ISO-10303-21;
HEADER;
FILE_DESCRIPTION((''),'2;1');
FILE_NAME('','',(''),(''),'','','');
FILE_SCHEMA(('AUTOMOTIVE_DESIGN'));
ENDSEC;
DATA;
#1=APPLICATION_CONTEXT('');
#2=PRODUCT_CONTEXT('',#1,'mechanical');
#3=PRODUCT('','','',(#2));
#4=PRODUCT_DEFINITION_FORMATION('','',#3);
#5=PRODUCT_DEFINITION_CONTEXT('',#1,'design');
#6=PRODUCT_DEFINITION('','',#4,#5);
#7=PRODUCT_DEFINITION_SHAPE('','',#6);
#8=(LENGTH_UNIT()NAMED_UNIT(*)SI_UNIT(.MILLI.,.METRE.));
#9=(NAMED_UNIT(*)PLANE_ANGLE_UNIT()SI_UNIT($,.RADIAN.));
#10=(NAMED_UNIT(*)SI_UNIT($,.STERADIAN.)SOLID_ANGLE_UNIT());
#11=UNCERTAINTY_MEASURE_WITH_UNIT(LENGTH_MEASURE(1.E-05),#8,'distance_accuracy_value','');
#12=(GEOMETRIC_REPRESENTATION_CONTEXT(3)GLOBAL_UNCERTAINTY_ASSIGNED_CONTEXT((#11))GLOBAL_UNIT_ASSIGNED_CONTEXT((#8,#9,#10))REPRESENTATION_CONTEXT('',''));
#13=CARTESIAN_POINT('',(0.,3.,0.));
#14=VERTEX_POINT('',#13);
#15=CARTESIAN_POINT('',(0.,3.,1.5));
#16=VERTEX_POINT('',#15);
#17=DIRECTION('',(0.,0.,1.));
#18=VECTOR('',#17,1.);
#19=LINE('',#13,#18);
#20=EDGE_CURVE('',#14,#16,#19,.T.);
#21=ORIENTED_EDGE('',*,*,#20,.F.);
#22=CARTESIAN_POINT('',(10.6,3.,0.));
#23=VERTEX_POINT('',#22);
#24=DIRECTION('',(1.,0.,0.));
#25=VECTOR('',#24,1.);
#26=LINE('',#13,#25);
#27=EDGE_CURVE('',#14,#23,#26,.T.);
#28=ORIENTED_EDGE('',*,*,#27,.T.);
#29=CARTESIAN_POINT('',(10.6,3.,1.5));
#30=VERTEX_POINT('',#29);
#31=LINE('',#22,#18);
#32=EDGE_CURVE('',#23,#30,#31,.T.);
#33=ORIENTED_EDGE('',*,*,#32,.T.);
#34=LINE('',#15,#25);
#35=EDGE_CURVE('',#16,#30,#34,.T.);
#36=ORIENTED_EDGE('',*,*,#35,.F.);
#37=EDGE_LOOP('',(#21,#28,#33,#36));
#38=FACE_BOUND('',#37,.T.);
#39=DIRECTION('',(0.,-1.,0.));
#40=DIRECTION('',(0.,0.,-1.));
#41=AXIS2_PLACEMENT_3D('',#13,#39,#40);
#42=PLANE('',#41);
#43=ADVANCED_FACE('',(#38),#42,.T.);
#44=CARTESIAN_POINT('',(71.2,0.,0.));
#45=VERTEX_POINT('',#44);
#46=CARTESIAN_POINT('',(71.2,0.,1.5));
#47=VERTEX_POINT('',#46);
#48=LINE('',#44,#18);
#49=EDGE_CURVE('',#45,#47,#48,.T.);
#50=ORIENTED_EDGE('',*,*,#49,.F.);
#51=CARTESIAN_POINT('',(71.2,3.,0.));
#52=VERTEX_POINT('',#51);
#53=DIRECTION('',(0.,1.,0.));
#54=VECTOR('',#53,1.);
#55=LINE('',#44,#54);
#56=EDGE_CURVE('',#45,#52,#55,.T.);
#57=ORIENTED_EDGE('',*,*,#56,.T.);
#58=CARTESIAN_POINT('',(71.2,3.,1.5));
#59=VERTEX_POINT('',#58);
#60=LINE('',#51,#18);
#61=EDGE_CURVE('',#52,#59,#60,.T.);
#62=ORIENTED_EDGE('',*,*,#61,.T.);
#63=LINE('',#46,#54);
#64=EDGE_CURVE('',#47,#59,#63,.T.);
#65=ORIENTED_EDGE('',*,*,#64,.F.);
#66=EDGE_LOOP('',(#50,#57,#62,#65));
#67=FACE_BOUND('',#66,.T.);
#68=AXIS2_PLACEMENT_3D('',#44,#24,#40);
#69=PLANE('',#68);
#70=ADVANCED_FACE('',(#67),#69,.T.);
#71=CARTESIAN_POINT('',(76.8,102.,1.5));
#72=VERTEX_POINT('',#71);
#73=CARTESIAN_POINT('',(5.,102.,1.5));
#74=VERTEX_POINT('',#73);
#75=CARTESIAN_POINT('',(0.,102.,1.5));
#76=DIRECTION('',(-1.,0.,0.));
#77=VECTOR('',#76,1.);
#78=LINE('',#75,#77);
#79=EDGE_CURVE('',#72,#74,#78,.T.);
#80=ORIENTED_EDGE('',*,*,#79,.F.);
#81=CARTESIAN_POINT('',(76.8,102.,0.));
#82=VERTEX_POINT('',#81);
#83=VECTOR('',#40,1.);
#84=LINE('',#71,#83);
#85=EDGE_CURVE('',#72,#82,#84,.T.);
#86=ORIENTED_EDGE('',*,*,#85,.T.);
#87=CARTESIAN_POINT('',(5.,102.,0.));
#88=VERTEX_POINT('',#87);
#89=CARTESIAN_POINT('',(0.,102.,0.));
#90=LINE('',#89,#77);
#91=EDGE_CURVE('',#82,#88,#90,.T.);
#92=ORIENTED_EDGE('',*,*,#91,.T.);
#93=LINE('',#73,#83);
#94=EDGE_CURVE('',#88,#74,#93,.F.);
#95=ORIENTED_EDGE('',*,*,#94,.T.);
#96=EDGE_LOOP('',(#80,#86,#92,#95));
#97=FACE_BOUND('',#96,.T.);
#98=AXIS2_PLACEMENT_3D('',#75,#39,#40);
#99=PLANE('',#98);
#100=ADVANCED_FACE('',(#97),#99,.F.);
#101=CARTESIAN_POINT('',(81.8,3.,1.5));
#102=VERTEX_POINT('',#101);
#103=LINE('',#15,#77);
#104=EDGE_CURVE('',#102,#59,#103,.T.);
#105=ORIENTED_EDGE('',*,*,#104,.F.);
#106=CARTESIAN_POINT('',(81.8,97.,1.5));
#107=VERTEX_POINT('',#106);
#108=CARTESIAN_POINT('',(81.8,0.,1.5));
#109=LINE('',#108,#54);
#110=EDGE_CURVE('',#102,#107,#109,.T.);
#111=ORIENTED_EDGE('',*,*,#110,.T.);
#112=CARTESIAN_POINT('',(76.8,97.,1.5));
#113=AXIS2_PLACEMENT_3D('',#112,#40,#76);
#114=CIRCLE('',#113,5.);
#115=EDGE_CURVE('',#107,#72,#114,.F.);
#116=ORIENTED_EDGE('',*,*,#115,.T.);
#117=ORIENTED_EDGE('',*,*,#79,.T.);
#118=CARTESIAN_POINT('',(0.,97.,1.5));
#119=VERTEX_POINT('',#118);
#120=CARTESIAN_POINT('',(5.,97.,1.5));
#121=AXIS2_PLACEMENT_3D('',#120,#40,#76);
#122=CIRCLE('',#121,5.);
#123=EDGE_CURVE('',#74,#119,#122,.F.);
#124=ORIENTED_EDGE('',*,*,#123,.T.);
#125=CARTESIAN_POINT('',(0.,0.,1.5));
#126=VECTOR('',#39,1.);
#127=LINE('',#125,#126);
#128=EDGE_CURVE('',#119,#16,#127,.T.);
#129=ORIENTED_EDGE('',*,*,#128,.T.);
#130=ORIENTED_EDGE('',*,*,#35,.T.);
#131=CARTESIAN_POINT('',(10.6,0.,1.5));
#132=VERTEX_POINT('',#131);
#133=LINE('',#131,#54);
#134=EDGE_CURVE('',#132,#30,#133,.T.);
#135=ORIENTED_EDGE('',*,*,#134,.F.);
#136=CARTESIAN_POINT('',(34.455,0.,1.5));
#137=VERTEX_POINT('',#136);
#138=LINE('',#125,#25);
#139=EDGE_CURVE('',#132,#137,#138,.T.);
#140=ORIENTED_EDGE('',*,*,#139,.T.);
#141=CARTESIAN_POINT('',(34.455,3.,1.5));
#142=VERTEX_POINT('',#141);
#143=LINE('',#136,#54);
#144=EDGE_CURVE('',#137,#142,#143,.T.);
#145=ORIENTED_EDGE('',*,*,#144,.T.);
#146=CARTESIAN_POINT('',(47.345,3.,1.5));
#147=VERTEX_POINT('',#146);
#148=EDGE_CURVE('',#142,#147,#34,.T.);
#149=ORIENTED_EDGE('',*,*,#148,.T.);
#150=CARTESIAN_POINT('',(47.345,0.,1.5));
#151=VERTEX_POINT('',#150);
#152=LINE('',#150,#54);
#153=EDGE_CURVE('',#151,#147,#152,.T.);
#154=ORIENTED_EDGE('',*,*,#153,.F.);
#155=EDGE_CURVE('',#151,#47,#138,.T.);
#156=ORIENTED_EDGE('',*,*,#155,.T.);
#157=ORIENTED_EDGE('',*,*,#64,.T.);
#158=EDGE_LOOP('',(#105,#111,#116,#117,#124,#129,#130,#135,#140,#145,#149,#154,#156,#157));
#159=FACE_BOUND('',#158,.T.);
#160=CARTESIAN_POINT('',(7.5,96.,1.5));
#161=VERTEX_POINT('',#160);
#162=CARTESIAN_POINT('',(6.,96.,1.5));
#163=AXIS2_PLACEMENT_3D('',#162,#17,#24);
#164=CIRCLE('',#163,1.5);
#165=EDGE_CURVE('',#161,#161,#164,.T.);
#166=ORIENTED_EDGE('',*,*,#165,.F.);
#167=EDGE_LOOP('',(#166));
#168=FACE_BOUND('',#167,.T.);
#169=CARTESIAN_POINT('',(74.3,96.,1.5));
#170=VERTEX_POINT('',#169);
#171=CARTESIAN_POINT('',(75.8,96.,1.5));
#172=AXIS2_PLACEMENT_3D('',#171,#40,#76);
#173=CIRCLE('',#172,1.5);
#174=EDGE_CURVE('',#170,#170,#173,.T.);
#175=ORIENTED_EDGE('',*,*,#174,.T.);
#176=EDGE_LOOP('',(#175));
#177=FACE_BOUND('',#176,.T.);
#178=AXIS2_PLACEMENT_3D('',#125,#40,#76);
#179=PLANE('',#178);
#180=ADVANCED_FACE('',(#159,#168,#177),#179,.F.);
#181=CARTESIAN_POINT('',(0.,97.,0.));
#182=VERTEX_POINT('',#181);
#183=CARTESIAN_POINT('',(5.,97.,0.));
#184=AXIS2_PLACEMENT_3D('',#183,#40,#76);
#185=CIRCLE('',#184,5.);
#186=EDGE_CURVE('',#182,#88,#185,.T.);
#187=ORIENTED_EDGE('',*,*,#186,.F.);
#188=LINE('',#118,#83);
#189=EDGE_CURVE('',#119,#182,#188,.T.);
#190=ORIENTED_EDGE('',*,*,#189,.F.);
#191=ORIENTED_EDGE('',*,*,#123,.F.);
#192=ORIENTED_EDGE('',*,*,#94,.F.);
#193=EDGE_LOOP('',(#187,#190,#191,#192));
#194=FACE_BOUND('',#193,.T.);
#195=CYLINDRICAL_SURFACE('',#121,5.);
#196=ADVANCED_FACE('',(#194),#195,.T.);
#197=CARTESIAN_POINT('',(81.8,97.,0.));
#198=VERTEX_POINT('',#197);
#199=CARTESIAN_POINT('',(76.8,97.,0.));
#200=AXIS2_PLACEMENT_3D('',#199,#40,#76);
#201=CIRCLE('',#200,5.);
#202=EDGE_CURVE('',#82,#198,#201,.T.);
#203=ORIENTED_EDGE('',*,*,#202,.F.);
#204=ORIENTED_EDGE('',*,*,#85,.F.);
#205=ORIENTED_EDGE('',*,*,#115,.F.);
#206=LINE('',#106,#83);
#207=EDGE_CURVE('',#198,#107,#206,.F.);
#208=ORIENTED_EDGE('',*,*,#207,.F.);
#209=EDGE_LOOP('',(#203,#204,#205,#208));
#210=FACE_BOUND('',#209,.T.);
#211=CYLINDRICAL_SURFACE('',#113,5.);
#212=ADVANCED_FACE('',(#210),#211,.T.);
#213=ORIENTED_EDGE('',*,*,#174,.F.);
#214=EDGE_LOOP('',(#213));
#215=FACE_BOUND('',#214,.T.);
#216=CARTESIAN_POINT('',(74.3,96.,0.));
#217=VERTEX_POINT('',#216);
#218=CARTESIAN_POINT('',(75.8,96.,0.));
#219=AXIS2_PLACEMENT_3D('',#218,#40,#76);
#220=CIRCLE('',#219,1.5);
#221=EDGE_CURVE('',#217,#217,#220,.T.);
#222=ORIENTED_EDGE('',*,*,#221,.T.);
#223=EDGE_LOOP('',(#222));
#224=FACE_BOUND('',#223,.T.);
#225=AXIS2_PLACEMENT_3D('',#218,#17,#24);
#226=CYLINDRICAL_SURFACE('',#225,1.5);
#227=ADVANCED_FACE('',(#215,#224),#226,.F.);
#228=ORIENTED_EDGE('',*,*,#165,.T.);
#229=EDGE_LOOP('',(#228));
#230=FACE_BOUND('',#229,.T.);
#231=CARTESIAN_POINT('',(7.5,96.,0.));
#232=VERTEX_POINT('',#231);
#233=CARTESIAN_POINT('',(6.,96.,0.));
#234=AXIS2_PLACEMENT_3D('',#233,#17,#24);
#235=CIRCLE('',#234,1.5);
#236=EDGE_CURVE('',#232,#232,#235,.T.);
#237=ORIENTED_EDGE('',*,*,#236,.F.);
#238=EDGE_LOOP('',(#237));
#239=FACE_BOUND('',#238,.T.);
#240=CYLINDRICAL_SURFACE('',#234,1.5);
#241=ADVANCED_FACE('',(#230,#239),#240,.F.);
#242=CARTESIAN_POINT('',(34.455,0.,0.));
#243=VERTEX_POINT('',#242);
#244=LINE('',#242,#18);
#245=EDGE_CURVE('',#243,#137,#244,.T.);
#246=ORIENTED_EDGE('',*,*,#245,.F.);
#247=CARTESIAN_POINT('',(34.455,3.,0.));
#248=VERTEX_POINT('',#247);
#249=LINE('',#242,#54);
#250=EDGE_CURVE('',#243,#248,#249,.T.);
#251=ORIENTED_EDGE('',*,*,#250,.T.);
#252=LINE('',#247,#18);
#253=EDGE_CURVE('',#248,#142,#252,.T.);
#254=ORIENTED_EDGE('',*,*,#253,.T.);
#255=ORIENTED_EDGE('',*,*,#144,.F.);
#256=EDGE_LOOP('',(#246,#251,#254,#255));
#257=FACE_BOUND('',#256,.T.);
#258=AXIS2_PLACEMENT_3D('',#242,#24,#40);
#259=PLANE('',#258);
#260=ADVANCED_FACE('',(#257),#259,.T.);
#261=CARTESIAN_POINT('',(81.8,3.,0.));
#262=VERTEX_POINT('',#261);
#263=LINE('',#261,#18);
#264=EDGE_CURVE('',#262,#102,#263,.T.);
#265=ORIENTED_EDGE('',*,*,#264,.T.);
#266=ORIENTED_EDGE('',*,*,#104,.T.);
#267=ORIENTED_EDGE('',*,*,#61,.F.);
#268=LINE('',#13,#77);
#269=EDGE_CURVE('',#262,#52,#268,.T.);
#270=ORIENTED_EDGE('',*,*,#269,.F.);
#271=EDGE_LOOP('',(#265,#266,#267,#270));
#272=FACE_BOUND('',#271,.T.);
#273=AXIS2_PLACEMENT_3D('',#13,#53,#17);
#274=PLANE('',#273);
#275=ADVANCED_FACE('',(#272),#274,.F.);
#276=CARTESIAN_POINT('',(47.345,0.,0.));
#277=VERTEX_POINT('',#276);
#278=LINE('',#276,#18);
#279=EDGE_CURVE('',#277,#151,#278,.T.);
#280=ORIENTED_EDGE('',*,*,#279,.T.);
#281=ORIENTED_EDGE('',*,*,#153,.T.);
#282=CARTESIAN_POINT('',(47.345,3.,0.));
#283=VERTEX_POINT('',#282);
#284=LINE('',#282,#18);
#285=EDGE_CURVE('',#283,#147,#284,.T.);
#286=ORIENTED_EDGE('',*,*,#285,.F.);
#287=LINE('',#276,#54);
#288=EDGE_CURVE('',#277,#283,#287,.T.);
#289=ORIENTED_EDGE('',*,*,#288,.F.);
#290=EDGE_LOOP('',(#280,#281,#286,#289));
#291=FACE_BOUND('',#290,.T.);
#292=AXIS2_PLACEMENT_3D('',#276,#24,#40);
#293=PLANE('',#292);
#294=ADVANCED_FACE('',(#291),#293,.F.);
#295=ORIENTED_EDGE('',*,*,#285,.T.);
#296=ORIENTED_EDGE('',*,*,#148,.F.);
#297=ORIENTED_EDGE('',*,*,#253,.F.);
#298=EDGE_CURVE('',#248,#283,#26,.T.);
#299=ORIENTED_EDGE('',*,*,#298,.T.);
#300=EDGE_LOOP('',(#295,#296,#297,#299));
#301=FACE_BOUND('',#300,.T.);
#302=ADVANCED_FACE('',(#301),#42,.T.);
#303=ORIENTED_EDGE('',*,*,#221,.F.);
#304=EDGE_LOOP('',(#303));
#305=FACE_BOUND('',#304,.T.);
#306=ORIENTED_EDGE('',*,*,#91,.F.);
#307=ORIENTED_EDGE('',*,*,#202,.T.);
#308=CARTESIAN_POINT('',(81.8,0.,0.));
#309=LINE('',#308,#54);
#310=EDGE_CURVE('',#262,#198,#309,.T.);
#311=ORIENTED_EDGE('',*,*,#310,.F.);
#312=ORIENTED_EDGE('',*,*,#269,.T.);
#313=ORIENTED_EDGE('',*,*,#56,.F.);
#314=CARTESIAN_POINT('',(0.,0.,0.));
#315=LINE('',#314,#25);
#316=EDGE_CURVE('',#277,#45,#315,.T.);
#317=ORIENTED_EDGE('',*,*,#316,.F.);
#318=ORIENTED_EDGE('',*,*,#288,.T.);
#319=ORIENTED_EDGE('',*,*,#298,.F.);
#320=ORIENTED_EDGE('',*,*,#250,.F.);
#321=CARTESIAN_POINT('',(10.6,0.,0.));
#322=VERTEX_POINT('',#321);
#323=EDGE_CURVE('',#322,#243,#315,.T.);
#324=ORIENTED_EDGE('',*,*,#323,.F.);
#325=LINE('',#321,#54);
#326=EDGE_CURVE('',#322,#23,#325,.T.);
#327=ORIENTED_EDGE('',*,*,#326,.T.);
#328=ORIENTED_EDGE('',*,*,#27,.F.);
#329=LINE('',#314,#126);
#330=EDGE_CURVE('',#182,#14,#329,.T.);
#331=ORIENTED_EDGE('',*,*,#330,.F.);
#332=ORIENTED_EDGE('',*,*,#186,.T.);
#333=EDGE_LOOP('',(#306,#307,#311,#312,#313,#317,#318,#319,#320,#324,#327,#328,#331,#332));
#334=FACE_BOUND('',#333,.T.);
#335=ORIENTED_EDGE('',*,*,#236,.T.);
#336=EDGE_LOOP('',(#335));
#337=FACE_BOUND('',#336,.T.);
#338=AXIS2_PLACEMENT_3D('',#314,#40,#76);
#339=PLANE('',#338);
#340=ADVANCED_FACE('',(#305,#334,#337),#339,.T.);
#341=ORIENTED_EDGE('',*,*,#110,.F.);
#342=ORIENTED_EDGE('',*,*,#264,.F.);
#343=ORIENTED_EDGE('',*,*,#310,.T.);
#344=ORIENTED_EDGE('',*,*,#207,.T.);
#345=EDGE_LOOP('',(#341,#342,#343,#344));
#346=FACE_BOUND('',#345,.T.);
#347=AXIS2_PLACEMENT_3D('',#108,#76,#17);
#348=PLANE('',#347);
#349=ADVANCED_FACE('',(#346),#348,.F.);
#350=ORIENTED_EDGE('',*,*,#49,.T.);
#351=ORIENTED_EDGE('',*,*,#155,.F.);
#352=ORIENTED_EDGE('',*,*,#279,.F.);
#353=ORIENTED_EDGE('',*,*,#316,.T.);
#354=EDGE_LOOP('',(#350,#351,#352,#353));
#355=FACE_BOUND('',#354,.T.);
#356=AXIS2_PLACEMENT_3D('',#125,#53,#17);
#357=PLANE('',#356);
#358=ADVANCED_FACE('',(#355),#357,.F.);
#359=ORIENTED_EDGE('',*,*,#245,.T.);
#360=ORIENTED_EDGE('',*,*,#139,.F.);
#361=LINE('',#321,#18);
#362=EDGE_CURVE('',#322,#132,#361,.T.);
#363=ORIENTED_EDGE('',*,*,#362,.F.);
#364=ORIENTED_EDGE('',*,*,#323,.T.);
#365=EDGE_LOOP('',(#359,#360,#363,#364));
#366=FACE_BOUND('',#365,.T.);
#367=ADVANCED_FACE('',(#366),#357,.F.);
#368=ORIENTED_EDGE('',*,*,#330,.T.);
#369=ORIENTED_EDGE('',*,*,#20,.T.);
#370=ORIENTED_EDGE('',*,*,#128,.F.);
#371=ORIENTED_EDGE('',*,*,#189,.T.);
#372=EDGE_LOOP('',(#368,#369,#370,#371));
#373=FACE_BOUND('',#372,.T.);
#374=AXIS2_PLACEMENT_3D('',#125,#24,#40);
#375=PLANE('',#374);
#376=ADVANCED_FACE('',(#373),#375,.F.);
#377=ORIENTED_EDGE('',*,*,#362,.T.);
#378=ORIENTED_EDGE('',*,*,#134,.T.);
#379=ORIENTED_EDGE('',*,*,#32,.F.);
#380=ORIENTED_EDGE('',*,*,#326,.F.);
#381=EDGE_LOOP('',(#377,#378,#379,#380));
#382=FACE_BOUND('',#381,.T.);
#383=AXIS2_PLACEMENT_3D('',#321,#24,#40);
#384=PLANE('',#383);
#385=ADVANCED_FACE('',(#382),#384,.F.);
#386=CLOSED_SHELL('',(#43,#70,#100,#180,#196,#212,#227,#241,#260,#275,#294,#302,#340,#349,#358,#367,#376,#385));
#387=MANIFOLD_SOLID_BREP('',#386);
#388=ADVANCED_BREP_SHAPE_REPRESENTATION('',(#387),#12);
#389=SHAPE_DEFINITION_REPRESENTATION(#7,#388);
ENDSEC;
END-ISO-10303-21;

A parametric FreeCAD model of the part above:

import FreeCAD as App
import Part
import Sketcher

V = App.Vector
Q = App.Units.Quantity


def edges_at(feature, points):
    """Names of the edges that pass closest to the given points."""
    edges = feature.Shape.Edges
    near = lambda p: min(range(len(edges)), key=lambda i: edges[i].distToShape(Part.Vertex(*p))[0])
    return sorted({f"Edge{near(p) + 1}" for p in points})


def add_polygon(sketch, points):
    """Adds a closed chain of lines whose ends are joined by coincident constraints."""
    first, n = sketch.GeometryCount, len(points)
    for a, b in zip(points, points[1:] + points[:1]):
        sketch.addGeometry(Part.LineSegment(App.Vector(*a, 0), App.Vector(*b, 0)), False)
    for i in range(n):
        sketch.addConstraint(Sketcher.Constraint("Coincident", first + i, 2, first + (i + 1) % n, 1))

doc = App.newDocument("Part")
body = doc.addObject("PartDesign::Body", "Body")

# Sketch on XY plane
sketch1 = body.newObject("Sketcher::SketchObject", "Sketch")
sketch1.AttachmentSupport = (doc.getObject("XY_Plane"), [""])
sketch1.MapMode = "FlatFace"
add_polygon(sketch1, [(0, 102), (0, 0), (81.8, 0), (81.8, 102)])  # lines 0-3
sketch1.addConstraint([
    Sketcher.Constraint("Vertical", 0),
    Sketcher.Constraint("Horizontal", 1),
    Sketcher.Constraint("Vertical", 2),
    Sketcher.Constraint("Horizontal", 3),
    Sketcher.Constraint("Coincident", 0, 2, -1, 1),
    Sketcher.Constraint("DistanceY", 0, 2, 0, 1, Q("102 mm")),
    Sketcher.Constraint("DistanceX", 1, 1, 1, 2, Q("81.8 mm")),
])
pad1 = body.newObject("PartDesign::Pad", "Pad")
pad1.Profile = sketch1
pad1.Length = 1.5

# Sketch on XY plane
sketch2 = body.newObject("Sketcher::SketchObject", "Sketch001")
sketch2.AttachmentSupport = (doc.getObject("XY_Plane"), [""])
sketch2.MapMode = "FlatFace"
sketch2.AttachmentOffset = App.Placement(V(0, 0, 1.5), App.Rotation())
add_polygon(sketch2, [(0, 3), (0, 0), (10.6, 0), (10.6, 3)])  # lines 0-3
add_polygon(sketch2, [(47.345, 0), (47.345, 3), (34.455, 3), (34.455, 0)])  # lines 4-7
add_polygon(sketch2, [(71.2, 3), (71.2, 0), (81.8, 0), (81.8, 3)])  # lines 8-11
sketch2.addGeometry(Part.Circle(V(6, 96, 0), V(0, 0, 1), 1.5), False)  # 12
sketch2.addGeometry(Part.Circle(V(75.8, 96, 0), V(0, 0, 1), 1.5), False)  # 13
sketch2.addConstraint([
    Sketcher.Constraint("Vertical", 0),
    Sketcher.Constraint("Horizontal", 1),
    Sketcher.Constraint("Vertical", 2),
    Sketcher.Constraint("Horizontal", 3),
    Sketcher.Constraint("Vertical", 4),
    Sketcher.Constraint("Horizontal", 5),
    Sketcher.Constraint("Vertical", 6),
    Sketcher.Constraint("Horizontal", 7),
    Sketcher.Constraint("Vertical", 8),
    Sketcher.Constraint("Horizontal", 9),
    Sketcher.Constraint("Vertical", 10),
    Sketcher.Constraint("Horizontal", 11),
    Sketcher.Constraint("Coincident", 0, 2, -1, 1),
    Sketcher.Constraint("Equal", 12, 13),
    Sketcher.Constraint("PointOnObject", 6, 2, -1),
    Sketcher.Constraint("PointOnObject", 8, 2, -1),
    Sketcher.Constraint("Horizontal", 12, 3, 13, 3),
    Sketcher.Constraint("Horizontal", 3, 2, 4, 2),
    Sketcher.Constraint("Horizontal", 5, 2, 10, 2),
    Sketcher.Constraint("Equal", 3, 9),
    Sketcher.Constraint("Diameter", 12, Q("3 mm")),
    Sketcher.Constraint("DistanceY", 0, 2, 0, 1, Q("3 mm")),
    Sketcher.Constraint("DistanceX", 1, 1, 1, 2, Q("10.6 mm")),
    Sketcher.Constraint("DistanceX", -1, 1, 12, 3, Q("6 mm")),
    Sketcher.Constraint("DistanceY", -1, 1, 12, 3, Q("96 mm")),
    Sketcher.Constraint("DistanceX", 5, 2, 5, 1, Q("12.89 mm")),
    Sketcher.Constraint("DistanceX", -1, 1, 13, 3, Q("75.8 mm")),
    Sketcher.Constraint("DistanceX", -1, 1, 8, 2, Q("71.2 mm")),
    Sketcher.Constraint("DistanceX", -1, 1, 4, 2, Q("47.345 mm")),
])
pocket1 = body.newObject("PartDesign::Pocket", "Pocket")
pocket1.Profile = sketch2
pocket1.Type = "ThroughAll"
doc.recompute()

fillet = body.newObject("PartDesign::Fillet", "Fillet")
fillet.Base = (pocket1, edges_at(pocket1, [(0, 102, 0.75), (81.8, 102, 0.75)]))
fillet.Radius = 5

doc.recompute()
